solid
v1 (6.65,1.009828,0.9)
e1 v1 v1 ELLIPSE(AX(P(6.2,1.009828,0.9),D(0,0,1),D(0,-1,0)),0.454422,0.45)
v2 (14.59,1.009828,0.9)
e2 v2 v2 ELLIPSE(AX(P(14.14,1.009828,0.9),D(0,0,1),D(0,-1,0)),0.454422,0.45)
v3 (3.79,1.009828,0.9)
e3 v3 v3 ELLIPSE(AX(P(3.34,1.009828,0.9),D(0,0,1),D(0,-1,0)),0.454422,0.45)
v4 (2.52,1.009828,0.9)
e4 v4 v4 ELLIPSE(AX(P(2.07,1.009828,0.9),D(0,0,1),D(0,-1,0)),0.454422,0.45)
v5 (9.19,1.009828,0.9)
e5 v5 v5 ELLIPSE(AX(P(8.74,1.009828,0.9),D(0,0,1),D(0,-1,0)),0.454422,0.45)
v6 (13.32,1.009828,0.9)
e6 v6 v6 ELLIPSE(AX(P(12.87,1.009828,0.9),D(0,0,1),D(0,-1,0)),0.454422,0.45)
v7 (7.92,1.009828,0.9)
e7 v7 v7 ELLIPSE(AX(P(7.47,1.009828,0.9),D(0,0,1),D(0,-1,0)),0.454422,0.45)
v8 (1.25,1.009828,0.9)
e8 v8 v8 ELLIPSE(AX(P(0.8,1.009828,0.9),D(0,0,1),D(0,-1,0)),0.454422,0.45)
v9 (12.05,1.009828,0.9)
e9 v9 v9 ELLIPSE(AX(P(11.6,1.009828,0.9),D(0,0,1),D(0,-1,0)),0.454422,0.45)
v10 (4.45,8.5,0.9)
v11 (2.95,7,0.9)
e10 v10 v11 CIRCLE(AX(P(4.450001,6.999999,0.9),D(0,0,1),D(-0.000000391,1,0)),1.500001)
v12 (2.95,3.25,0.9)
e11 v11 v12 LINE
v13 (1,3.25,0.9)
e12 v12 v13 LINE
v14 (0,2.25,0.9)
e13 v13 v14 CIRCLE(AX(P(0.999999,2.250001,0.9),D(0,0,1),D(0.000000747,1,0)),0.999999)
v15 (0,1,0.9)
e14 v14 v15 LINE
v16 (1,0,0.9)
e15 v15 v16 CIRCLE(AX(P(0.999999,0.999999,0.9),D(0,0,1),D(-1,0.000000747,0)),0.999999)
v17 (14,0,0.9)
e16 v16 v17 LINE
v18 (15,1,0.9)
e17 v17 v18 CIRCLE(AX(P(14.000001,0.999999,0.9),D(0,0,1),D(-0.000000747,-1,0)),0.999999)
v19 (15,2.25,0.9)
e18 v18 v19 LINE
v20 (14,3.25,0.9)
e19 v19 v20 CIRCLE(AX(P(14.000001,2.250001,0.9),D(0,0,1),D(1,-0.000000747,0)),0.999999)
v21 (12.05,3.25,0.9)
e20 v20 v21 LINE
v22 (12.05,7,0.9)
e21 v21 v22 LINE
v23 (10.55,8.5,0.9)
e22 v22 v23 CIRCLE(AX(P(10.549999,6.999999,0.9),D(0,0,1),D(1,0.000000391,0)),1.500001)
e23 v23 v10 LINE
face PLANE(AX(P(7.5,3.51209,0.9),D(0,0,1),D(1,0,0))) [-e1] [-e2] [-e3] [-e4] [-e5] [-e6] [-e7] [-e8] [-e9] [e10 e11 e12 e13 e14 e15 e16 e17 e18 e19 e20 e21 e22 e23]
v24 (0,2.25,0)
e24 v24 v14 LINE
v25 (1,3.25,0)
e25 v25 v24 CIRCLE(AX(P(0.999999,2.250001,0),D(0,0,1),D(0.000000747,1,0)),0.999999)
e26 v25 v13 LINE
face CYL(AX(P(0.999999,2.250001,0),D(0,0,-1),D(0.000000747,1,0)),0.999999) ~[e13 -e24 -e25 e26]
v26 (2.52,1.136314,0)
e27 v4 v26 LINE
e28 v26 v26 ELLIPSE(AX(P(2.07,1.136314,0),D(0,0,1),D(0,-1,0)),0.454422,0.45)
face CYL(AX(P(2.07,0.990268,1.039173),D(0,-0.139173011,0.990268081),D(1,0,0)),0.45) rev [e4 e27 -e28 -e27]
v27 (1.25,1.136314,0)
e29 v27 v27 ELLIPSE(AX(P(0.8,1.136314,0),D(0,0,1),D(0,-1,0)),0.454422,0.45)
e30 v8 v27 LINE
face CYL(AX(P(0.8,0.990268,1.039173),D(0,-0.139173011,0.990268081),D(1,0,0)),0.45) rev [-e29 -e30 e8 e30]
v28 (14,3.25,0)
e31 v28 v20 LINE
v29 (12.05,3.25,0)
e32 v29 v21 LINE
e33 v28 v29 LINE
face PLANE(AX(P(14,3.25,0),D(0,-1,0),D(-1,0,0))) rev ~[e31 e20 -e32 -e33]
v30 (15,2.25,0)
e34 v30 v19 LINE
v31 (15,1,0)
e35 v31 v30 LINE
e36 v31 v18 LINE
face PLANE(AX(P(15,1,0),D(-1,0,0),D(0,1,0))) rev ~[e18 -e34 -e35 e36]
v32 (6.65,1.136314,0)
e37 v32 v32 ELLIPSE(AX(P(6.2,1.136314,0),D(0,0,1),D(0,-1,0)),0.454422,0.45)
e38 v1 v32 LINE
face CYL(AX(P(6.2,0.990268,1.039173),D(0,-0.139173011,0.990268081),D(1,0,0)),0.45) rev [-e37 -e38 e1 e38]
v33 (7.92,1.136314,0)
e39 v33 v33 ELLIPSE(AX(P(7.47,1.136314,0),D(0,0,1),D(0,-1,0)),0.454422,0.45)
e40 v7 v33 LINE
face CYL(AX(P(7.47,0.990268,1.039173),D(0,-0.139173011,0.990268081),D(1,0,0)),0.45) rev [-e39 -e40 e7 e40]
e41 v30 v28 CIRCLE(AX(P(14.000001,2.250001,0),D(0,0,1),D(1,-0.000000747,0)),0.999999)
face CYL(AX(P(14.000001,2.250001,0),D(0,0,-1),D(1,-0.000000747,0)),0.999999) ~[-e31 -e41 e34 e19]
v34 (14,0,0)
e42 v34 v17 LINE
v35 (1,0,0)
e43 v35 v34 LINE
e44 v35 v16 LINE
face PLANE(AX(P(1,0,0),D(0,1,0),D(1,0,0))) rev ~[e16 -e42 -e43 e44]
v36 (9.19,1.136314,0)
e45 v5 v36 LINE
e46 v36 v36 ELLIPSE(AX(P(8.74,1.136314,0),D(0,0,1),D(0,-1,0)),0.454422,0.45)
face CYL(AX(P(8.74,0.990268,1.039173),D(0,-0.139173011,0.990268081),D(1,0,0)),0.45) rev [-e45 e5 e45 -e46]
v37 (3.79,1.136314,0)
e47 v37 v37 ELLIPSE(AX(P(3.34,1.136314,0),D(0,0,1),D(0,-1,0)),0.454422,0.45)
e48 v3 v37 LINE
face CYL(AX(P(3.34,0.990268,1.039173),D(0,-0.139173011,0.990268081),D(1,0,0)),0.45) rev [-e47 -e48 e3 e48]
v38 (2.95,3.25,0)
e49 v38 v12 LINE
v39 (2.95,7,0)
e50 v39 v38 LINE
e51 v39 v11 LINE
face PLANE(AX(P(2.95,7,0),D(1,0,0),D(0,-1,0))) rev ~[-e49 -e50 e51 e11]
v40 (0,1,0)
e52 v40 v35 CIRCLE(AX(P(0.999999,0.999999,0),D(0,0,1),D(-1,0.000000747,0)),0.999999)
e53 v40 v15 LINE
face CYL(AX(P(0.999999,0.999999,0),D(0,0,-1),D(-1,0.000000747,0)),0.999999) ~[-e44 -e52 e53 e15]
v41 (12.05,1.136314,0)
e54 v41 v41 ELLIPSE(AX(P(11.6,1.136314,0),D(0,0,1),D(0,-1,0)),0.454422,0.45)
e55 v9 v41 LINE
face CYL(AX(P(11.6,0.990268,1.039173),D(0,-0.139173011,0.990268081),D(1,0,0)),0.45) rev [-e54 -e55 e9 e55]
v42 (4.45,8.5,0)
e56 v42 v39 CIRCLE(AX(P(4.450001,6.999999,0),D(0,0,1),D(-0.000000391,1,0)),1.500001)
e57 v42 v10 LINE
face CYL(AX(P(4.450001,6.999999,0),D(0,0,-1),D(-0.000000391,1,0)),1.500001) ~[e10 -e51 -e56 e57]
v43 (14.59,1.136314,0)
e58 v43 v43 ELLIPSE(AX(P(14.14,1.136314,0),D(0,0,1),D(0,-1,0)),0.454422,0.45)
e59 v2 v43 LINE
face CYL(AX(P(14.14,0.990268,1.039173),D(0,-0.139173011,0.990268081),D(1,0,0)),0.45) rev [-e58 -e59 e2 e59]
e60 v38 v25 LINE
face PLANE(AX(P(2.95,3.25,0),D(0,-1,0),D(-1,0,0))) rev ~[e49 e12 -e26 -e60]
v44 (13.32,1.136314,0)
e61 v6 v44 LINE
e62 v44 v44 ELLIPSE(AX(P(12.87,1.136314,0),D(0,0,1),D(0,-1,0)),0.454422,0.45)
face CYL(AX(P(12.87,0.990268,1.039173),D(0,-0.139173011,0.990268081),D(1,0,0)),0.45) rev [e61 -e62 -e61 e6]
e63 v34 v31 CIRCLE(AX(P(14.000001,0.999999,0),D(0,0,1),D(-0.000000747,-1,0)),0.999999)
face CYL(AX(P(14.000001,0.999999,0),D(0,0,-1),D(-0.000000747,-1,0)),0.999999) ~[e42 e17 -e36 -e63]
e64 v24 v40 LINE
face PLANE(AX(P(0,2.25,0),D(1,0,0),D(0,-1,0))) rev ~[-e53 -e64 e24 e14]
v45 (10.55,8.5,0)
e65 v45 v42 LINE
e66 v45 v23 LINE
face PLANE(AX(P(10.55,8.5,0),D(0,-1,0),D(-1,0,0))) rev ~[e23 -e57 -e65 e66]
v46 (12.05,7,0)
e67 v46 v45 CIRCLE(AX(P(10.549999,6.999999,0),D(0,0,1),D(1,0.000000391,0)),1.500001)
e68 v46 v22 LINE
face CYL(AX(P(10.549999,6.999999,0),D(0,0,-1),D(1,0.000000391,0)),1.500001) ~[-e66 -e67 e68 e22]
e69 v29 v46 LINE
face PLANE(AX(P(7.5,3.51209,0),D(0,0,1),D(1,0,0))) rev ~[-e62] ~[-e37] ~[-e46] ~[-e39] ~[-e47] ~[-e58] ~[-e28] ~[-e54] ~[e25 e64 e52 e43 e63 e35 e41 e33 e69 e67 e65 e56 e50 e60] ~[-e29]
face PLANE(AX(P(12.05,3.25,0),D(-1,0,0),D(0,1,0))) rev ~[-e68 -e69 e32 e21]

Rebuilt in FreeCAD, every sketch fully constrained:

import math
import FreeCAD as App
import Part
import Sketcher
Q = App.Units.Quantity

doc = App.newDocument("Part")
params = doc.addObject("Spreadsheet::Sheet", "Params")
for row, (alias, value) in enumerate([
    ("sketch1_radius", "0.999999 mm"),
    ("sketch1_radius2", "1.500001 mm"),
    ("sketch1_width", "13 mm"),
    ("sketch1_width2", "6.1 mm"),
    ("sketch1_height", "1.25 mm"),
    ("pad1_length", "0.9 mm"),
    ("sketch2_diameter", "0.9 mm"),
    ("pocket1_length", "25 mm"),
], start=1):
    params.set(f"A{row}", alias)
    params.set(f"B{row}", "=" + value)
    params.setAlias(f"B{row}", alias)

body = doc.addObject("PartDesign::Body", "Body")

# Sketch on XY plane
sketch1 = doc.addObject("Sketcher::SketchObject", "Sketch")
body.addObject(sketch1)
sketch1.AttachmentSupport = (doc.XY_Plane, [""])
sketch1.MapMode = "FlatFace"
sketch1.addGeometry(Part.ArcOfCircle(Part.Circle(App.Vector(1, 1, 0), App.Vector(0, 0, 1), 1), math.radians(180), math.radians(270)), False)
sketch1.addGeometry(Part.LineSegment(App.Vector(1, 0, 0), App.Vector(14, 0, 0)), False)
sketch1.addGeometry(Part.ArcOfCircle(Part.Circle(App.Vector(14, 1, 0), App.Vector(0, 0, 1), 1), math.radians(-90), math.radians(0)), False)
sketch1.addGeometry(Part.LineSegment(App.Vector(15, 1, 0), App.Vector(15, 2.2, 0)), False)
sketch1.addGeometry(Part.ArcOfCircle(Part.Circle(App.Vector(14, 2.3, 0), App.Vector(0, 0, 1), 1), math.radians(0), math.radians(90)), False)
sketch1.addGeometry(Part.LineSegment(App.Vector(14, 3.2, 0), App.Vector(12.1, 3.2, 0)), False)
sketch1.addGeometry(Part.LineSegment(App.Vector(12.1, 3.2, 0), App.Vector(12.1, 7, 0)), False)
sketch1.addGeometry(Part.ArcOfCircle(Part.Circle(App.Vector(10.5, 7, 0), App.Vector(0, 0, 1), 1.5), math.radians(0), math.radians(90)), False)
sketch1.addGeometry(Part.LineSegment(App.Vector(10.6, 8.5, 0), App.Vector(4.5, 8.5, 0)), False)
sketch1.addGeometry(Part.ArcOfCircle(Part.Circle(App.Vector(4.5, 7, 0), App.Vector(0, 0, 1), 1.5), math.radians(90), math.radians(180)), False)
sketch1.addGeometry(Part.LineSegment(App.Vector(3, 7, 0), App.Vector(3, 3.2, 0)), False)
sketch1.addGeometry(Part.LineSegment(App.Vector(3, 3.2, 0), App.Vector(1, 3.2, 0)), False)
sketch1.addGeometry(Part.ArcOfCircle(Part.Circle(App.Vector(1, 2.3, 0), App.Vector(0, 0, 1), 1), math.radians(90), math.radians(180)), False)
sketch1.addGeometry(Part.LineSegment(App.Vector(0, 2.2, 0), App.Vector(0, 1, 0)), False)
sketch1.addConstraint(Sketcher.Constraint("Tangent", 0, 2, 1, 1))
sketch1.addConstraint(Sketcher.Constraint("Tangent", 1, 2, 2, 1))
sketch1.addConstraint(Sketcher.Constraint("Tangent", 2, 2, 3, 1))
sketch1.addConstraint(Sketcher.Constraint("Tangent", 3, 2, 4, 1))
sketch1.addConstraint(Sketcher.Constraint("Tangent", 4, 2, 5, 1))
sketch1.addConstraint(Sketcher.Constraint("Coincident", 5, 2, 6, 1))
sketch1.addConstraint(Sketcher.Constraint("Tangent", 6, 2, 7, 1))
sketch1.addConstraint(Sketcher.Constraint("Tangent", 7, 2, 8, 1))
sketch1.addConstraint(Sketcher.Constraint("Tangent", 8, 2, 9, 1))
sketch1.addConstraint(Sketcher.Constraint("Tangent", 9, 2, 10, 1))
sketch1.addConstraint(Sketcher.Constraint("Coincident", 10, 2, 11, 1))
sketch1.addConstraint(Sketcher.Constraint("Tangent", 11, 2, 12, 1))
sketch1.addConstraint(Sketcher.Constraint("Tangent", 12, 2, 13, 1))
sketch1.addConstraint(Sketcher.Constraint("Tangent", 13, 2, 0, 1))
sketch1.addConstraint(Sketcher.Constraint("Horizontal", 1))
sketch1.addConstraint(Sketcher.Constraint("Vertical", 3))
sketch1.addConstraint(Sketcher.Constraint("Horizontal", 5))
sketch1.addConstraint(Sketcher.Constraint("Vertical", 6))
sketch1.addConstraint(Sketcher.Constraint("Horizontal", 8))
sketch1.addConstraint(Sketcher.Constraint("Vertical", 10))
sketch1.addConstraint(Sketcher.Constraint("Horizontal", 11))
sketch1.addConstraint(Sketcher.Constraint("Vertical", 13))
sketch1.addConstraint(Sketcher.Constraint("Equal", 0, 2))
sketch1.addConstraint(Sketcher.Constraint("Equal", 2, 4))
sketch1.addConstraint(Sketcher.Constraint("Equal", 7, 9))
sketch1.addConstraint(Sketcher.Constraint("Equal", 4, 12))
sketch1.addConstraint(Sketcher.Constraint("PointOnObject", 0, 2, -1))
sketch1.addConstraint(Sketcher.Constraint("PointOnObject", 12, 2, -2))
sketch1.addConstraint(Sketcher.Constraint("Horizontal", 4, 3, 12, 3))
sketch1.addConstraint(Sketcher.Constraint("Equal", 5, 11))
sketch1.addConstraint(Sketcher.Constraint("Radius", 0, Q("0.999999 mm")))
sketch1.addConstraint(Sketcher.Constraint("Radius", 7, Q("1.500001 mm")))
sketch1.addConstraint(Sketcher.Constraint("DistanceX", 1, 1, 1, 2, Q("13 mm")))
sketch1.addConstraint(Sketcher.Constraint("DistanceX", 8, 2, 8, 1, Q("6.1 mm")))
sketch1.addConstraint(Sketcher.Constraint("DistanceY", -1, 1, 7, 3, Q("6.999999 mm")))
sketch1.addConstraint(Sketcher.Constraint("DistanceY", 3, 1, 3, 2, Q("1.25 mm")))
sketch1.setExpression("Constraints[30]", "Params.sketch1_radius")
sketch1.setExpression("Constraints[31]", "Params.sketch1_radius2")
sketch1.setExpression("Constraints[32]", "Params.sketch1_width")
sketch1.setExpression("Constraints[33]", "Params.sketch1_width2")
sketch1.setExpression("Constraints[35]", "Params.sketch1_height")
pad1 = doc.addObject("PartDesign::Pad", "Pad")
body.addObject(pad1)
pad1.Profile = sketch1
pad1.setExpression("Length", "Params.pad1_length")

# Sketch on an angled plane
sketch2 = doc.addObject("Sketcher::SketchObject", "Sketch001")
body.addObject(sketch2)
sketch2.Placement = App.Placement(App.Vector(0, -0.124037, 0.882568), App.Rotation(App.Vector(1, 0, 0), App.Vector(0, -0.990268081, -0.139173011), App.Vector(0, 0.139173011, -0.990268081), "ZXY"))
sketch2.addGeometry(Part.Circle(App.Vector(0.8, -1.13, 0), App.Vector(0, 0, 1), 0.45), False)
sketch2.addGeometry(Part.Circle(App.Vector(2.07, -1.13, 0), App.Vector(0, 0, 1), 0.45), False)
sketch2.addGeometry(Part.Circle(App.Vector(3.34, -1.13, 0), App.Vector(0, 0, 1), 0.45), False)
sketch2.addGeometry(Part.Circle(App.Vector(6.2, -1.13, 0), App.Vector(0, 0, 1), 0.45), False)
sketch2.addGeometry(Part.Circle(App.Vector(7.47, -1.13, 0), App.Vector(0, 0, 1), 0.45), False)
sketch2.addGeometry(Part.Circle(App.Vector(8.74, -1.13, 0), App.Vector(0, 0, 1), 0.45), False)
sketch2.addGeometry(Part.Circle(App.Vector(11.6, -1.13, 0), App.Vector(0, 0, 1), 0.45), False)
sketch2.addGeometry(Part.Circle(App.Vector(12.87, -1.13, 0), App.Vector(0, 0, 1), 0.45), False)
sketch2.addGeometry(Part.Circle(App.Vector(14.14, -1.13, 0), App.Vector(0, 0, 1), 0.45), False)
sketch2.addConstraint(Sketcher.Constraint("Equal", 0, 1))
sketch2.addConstraint(Sketcher.Constraint("Equal", 1, 2))
sketch2.addConstraint(Sketcher.Constraint("Equal", 2, 3))
sketch2.addConstraint(Sketcher.Constraint("Equal", 3, 4))
sketch2.addConstraint(Sketcher.Constraint("Equal", 4, 5))
sketch2.addConstraint(Sketcher.Constraint("Equal", 5, 6))
sketch2.addConstraint(Sketcher.Constraint("Equal", 6, 7))
sketch2.addConstraint(Sketcher.Constraint("Equal", 7, 8))
sketch2.addConstraint(Sketcher.Constraint("Horizontal", 0, 3, 1, 3))
sketch2.addConstraint(Sketcher.Constraint("Horizontal", 1, 3, 2, 3))
sketch2.addConstraint(Sketcher.Constraint("Horizontal", 2, 3, 3, 3))
sketch2.addConstraint(Sketcher.Constraint("Horizontal", 3, 3, 4, 3))
sketch2.addConstraint(Sketcher.Constraint("Horizontal", 4, 3, 5, 3))
sketch2.addConstraint(Sketcher.Constraint("Horizontal", 5, 3, 6, 3))
sketch2.addConstraint(Sketcher.Constraint("Horizontal", 6, 3, 7, 3))
sketch2.addConstraint(Sketcher.Constraint("Horizontal", 7, 3, 8, 3))
sketch2.addConstraint(Sketcher.Constraint("Diameter", 0, Q("0.9 mm")))
sketch2.addConstraint(Sketcher.Constraint("DistanceX", -1, 1, 0, 3, Q("0.8 mm")))
sketch2.addConstraint(Sketcher.Constraint("DistanceX", -1, 1, 3, 3, Q("6.2 mm")))
sketch2.addConstraint(Sketcher.Constraint("DistanceX", -1, 1, 6, 3, Q("11.6 mm")))
sketch2.addConstraint(Sketcher.Constraint("DistanceX", 1, 3, 4, 3, Q("5.4 mm")))
sketch2.addConstraint(Sketcher.Constraint("DistanceX", 2, 3, 5, 3, Q("5.4 mm")))
sketch2.addConstraint(Sketcher.Constraint("DistanceX", 4, 3, 7, 3, Q("5.4 mm")))
sketch2.addConstraint(Sketcher.Constraint("DistanceX", 5, 3, 8, 3, Q("5.4 mm")))
sketch2.addConstraint(Sketcher.Constraint("DistanceX", -1, 1, 1, 3, Q("2.07 mm")))
sketch2.addConstraint(Sketcher.Constraint("DistanceX", -1, 1, 2, 3, Q("3.34 mm")))
sketch2.addConstraint(Sketcher.Constraint("DistanceY", 0, 3, -1, 1, Q("1.125256 mm")))
sketch2.setExpression("Constraints[16]", "Params.sketch2_diameter")
pocket1 = doc.addObject("PartDesign::Pocket", "Pocket")
body.addObject(pocket1)
pocket1.Profile = sketch2
pocket1.setExpression("Length", "Params.pocket1_length")
pocket1.Reversed = True

doc.recompute()
